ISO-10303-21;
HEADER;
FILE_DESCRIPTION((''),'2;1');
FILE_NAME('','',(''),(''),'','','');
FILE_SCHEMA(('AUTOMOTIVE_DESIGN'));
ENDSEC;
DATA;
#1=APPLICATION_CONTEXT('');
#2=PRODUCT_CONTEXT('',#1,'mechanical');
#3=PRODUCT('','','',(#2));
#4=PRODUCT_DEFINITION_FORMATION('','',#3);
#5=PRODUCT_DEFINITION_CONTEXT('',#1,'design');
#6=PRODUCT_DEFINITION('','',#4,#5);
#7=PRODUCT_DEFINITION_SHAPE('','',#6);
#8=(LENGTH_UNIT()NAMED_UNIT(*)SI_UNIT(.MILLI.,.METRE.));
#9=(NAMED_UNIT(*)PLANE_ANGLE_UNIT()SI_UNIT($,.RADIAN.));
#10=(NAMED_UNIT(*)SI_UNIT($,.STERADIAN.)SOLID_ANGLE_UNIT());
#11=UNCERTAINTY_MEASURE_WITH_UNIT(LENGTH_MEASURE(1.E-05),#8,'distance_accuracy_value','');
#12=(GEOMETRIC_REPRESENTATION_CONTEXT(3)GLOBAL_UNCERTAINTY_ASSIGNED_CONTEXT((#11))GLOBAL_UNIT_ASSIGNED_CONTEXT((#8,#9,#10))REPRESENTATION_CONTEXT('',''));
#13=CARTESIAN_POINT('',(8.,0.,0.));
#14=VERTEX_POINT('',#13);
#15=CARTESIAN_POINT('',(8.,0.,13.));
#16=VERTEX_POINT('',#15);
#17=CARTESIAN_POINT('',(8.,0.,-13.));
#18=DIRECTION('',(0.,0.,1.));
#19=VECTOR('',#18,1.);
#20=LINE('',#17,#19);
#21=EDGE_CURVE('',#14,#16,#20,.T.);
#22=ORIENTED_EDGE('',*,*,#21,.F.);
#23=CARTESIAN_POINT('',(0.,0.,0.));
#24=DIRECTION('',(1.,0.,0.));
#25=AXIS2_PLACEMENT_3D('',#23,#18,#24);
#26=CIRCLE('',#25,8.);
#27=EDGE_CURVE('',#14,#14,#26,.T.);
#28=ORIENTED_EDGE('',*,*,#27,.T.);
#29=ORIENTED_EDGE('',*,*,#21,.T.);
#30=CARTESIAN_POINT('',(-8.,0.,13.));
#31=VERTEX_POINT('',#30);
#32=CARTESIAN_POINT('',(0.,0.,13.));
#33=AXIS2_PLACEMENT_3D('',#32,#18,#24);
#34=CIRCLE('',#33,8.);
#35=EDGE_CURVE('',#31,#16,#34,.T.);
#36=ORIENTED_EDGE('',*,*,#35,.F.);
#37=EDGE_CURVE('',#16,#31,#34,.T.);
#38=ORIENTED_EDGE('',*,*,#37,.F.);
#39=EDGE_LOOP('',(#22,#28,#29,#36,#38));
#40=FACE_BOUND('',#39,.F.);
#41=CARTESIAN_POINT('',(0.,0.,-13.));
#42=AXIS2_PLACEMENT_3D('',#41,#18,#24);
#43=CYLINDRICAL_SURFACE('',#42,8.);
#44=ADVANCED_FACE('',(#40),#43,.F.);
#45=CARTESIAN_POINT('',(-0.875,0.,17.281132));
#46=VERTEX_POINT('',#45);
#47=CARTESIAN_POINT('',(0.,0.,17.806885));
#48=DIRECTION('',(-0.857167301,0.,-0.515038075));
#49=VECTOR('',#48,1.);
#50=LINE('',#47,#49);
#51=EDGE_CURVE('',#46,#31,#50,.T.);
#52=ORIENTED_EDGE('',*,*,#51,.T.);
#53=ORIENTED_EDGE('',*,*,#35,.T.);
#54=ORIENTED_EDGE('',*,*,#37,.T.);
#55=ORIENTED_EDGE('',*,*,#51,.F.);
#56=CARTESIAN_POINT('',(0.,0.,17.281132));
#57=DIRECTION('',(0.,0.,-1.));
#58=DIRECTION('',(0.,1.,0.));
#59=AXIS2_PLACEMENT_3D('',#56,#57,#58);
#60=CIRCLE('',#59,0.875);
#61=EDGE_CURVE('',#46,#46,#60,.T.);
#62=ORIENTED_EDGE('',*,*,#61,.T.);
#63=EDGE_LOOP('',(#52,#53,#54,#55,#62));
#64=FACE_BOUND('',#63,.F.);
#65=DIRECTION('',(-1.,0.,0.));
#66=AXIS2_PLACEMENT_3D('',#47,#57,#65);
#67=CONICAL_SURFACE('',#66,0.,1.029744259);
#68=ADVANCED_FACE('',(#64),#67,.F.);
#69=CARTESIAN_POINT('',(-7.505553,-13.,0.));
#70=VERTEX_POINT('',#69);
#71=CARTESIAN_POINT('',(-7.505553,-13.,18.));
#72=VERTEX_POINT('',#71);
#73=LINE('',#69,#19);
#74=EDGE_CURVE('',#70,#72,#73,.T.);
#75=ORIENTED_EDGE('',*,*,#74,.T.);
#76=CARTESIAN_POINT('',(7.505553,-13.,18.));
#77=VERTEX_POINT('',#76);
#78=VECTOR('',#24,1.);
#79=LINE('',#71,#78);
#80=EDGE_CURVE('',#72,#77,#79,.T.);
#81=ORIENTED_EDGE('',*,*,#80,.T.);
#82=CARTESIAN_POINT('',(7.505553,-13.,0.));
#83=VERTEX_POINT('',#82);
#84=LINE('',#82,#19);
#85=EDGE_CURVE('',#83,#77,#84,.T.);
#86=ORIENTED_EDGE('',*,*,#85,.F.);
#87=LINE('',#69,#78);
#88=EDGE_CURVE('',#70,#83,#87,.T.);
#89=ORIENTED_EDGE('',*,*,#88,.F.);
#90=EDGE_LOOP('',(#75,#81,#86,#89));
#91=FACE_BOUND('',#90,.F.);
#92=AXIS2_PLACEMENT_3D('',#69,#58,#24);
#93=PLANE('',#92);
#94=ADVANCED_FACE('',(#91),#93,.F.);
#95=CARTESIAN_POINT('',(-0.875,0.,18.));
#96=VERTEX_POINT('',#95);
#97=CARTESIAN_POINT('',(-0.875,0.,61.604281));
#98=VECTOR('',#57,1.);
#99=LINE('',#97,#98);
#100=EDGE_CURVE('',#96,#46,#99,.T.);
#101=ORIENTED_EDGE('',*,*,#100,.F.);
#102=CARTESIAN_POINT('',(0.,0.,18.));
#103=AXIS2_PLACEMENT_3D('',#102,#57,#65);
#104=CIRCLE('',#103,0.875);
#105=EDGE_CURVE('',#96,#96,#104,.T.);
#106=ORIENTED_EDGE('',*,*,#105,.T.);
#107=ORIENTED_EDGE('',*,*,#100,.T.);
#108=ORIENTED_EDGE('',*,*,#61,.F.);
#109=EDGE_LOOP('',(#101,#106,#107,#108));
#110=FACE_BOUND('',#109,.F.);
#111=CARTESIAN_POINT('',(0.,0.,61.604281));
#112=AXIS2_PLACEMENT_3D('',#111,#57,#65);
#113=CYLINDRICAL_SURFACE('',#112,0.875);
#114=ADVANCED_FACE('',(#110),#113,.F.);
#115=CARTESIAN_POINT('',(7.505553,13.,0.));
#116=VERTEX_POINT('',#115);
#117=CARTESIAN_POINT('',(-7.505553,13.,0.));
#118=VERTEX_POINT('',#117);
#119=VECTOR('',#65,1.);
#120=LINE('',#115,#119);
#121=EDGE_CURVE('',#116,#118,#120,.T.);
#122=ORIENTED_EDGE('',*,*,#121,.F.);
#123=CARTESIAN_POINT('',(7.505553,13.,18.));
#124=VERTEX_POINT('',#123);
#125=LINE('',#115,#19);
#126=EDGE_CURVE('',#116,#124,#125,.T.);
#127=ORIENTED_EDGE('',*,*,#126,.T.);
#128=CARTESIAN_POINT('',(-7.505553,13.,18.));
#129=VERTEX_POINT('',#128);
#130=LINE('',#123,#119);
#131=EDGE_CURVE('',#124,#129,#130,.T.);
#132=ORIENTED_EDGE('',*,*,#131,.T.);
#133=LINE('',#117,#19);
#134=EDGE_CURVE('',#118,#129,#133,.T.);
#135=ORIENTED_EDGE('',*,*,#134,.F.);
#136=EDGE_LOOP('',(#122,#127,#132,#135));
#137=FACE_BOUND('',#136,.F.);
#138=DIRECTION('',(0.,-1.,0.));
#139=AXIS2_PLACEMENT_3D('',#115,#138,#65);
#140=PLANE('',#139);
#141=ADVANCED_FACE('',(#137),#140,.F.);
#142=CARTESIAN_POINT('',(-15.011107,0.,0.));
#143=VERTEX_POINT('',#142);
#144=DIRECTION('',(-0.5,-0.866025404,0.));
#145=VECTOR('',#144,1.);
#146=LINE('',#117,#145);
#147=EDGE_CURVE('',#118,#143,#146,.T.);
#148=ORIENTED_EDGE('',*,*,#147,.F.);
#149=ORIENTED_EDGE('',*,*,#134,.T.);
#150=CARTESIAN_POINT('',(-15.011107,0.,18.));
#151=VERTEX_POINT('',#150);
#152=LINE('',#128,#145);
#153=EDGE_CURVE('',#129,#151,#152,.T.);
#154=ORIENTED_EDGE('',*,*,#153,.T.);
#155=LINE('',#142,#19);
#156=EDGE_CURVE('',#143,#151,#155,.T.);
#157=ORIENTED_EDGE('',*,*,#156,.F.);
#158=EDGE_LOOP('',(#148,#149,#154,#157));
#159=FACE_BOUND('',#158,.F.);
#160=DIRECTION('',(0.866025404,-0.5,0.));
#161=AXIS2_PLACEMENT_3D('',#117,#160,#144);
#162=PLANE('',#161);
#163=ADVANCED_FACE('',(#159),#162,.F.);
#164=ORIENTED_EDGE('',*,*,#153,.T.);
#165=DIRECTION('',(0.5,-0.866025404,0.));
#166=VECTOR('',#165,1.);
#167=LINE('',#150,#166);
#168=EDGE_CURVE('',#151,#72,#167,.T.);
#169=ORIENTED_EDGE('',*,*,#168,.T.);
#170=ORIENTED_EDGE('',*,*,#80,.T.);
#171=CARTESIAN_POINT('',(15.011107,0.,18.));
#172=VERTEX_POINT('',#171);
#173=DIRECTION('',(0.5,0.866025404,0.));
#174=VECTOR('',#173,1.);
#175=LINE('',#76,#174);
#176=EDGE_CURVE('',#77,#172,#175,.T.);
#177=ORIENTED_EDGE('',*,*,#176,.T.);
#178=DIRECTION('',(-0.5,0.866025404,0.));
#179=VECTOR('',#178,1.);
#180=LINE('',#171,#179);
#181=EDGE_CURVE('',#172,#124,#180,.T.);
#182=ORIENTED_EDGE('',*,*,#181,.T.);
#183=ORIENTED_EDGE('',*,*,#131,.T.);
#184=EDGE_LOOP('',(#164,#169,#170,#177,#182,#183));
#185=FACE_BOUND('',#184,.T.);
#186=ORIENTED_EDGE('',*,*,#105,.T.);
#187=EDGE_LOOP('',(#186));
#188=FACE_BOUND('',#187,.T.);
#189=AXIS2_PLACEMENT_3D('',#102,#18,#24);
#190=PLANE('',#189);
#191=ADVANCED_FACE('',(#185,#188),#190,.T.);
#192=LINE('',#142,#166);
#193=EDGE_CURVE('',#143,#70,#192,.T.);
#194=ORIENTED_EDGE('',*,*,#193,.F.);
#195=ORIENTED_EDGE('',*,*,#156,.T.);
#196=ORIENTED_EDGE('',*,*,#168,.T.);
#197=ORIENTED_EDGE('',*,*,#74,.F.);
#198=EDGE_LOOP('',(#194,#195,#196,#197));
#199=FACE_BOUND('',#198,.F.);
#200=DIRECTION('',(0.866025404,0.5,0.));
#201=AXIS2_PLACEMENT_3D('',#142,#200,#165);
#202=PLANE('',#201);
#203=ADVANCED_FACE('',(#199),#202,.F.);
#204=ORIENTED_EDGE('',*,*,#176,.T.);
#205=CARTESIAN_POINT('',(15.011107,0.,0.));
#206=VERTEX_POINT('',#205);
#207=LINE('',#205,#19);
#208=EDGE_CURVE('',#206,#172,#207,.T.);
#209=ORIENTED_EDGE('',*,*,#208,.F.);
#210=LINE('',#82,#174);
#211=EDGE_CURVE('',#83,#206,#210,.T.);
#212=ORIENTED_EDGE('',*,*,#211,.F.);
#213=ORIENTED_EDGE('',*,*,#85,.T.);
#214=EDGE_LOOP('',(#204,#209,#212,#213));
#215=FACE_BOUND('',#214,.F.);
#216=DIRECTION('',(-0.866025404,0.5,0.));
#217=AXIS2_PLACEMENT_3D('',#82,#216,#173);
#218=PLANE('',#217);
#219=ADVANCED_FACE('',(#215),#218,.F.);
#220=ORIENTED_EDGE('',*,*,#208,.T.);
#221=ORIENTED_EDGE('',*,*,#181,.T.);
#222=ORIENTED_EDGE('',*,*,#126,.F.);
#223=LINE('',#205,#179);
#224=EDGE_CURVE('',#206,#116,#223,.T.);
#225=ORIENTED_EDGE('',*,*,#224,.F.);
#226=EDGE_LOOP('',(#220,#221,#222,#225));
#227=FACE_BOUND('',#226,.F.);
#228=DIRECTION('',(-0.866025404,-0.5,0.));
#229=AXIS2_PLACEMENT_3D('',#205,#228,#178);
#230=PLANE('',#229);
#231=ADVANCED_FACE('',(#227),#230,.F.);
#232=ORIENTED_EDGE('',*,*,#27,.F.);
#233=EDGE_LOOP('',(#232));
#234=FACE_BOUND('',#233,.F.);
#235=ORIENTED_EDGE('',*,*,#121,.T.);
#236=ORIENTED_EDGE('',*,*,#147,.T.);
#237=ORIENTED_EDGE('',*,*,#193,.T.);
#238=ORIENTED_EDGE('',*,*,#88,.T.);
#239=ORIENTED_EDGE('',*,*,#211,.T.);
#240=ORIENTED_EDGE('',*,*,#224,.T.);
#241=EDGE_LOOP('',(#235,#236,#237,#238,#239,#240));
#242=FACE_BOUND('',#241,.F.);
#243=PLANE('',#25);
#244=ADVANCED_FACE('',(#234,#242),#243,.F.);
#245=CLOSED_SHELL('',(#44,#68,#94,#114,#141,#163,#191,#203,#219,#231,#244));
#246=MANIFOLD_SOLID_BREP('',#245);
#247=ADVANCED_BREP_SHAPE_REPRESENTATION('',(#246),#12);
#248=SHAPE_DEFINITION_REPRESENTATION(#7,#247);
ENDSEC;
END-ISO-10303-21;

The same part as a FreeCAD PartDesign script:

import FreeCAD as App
import Part
import Sketcher
Q = App.Units.Quantity

doc = App.newDocument("Part")
body = doc.addObject("PartDesign::Body", "Body")

sketch1 = doc.addObject("Sketcher::SketchObject", "Sketch")
body.addObject(sketch1)
sketch1.AttachmentSupport = (doc.XY_Plane, [""])
sketch1.MapMode = "FlatFace"
sketch1.addGeometry(Part.LineSegment(App.Vector(15, 0, 0), App.Vector(8, 13, 0)), False)
sketch1.addGeometry(Part.LineSegment(App.Vector(8, 13, 0), App.Vector(-8, 13, 0)), False)
sketch1.addGeometry(Part.LineSegment(App.Vector(-8, 13, 0), App.Vector(-15, 0, 0)), False)
sketch1.addGeometry(Part.LineSegment(App.Vector(-15, 0, 0), App.Vector(-8, -13, 0)), False)
sketch1.addGeometry(Part.LineSegment(App.Vector(-8, -13, 0), App.Vector(8, -13, 0)), False)
sketch1.addGeometry(Part.LineSegment(App.Vector(8, -13, 0), App.Vector(15, 0, 0)), False)
sketch1.addConstraint(Sketcher.Constraint("Coincident", 0, 2, 1, 1))
sketch1.addConstraint(Sketcher.Constraint("Coincident", 1, 2, 2, 1))
sketch1.addConstraint(Sketcher.Constraint("Coincident", 2, 2, 3, 1))
sketch1.addConstraint(Sketcher.Constraint("Coincident", 3, 2, 4, 1))
sketch1.addConstraint(Sketcher.Constraint("Coincident", 4, 2, 5, 1))
sketch1.addConstraint(Sketcher.Constraint("Coincident", 5, 2, 0, 1))
sketch1.addConstraint(Sketcher.Constraint("Horizontal", 1))
sketch1.addConstraint(Sketcher.Constraint("Horizontal", 4))
sketch1.addConstraint(Sketcher.Constraint("Symmetric", 0, 2, 3, 2, -1, 1))
sketch1.addConstraint(Sketcher.Constraint("Symmetric", 2, 2, 5, 2, -1, 1))
sketch1.addConstraint(Sketcher.Constraint("PointOnObject", 2, 2, -1))
sketch1.addConstraint(Sketcher.Constraint("Parallel", 2, 5))
sketch1.addConstraint(Sketcher.Constraint("Vertical", 1, 2, 3, 2))
sketch1.addConstraint(Sketcher.Constraint("Angle", 0, Q("120 deg")))
sketch1.addConstraint(Sketcher.Constraint("DistanceY", -1, 1, 0, 2, 13.0))
sketch1.addConstraint(Sketcher.Constraint("DistanceX", 1, 2, 1, 1, 15.011107))
pad1 = doc.addObject("PartDesign::Pad", "Pad")
body.addObject(pad1)
pad1.Profile = sketch1
pad1.Length = 18

sketch2 = doc.addObject("Sketcher::SketchObject", "Sketch001")
body.addObject(sketch2)
sketch2.AttachmentSupport = (doc.XY_Plane, [""])
sketch2.MapMode = "FlatFace"
sketch2.addGeometry(Part.Circle(App.Vector(0, 0, 0), App.Vector(0, 0, 1), 8), False)
sketch2.addConstraint(Sketcher.Constraint("Coincident", 0, 3, -1, 1))
sketch2.addConstraint(Sketcher.Constraint("Diameter", 0, 16.0))
doc.recompute()
hole = doc.addObject("PartDesign::Hole", "Hole")
body.addObject(hole)
hole.Profile = sketch2
hole.ThreadType = "None"
hole.Diameter = 16
hole.DepthType = "Dimension"
hole.Depth = 13
hole.DrillPoint = "Angled"
hole.DrillPointAngle = 118
hole.Reversed = True

sketch3 = doc.addObject("Sketcher::SketchObject", "Sketch002")
body.addObject(sketch3)
sketch3.AttachmentSupport = (doc.XY_Plane, [""])
sketch3.MapMode = "FlatFace"
sketch3.AttachmentOffset = App.Placement(App.Vector(0, 0, 18), App.Rotation())
sketch3.addGeometry(Part.Circle(App.Vector(0, 0, 0), App.Vector(0, 0, 1), 0.9), False)
sketch3.addConstraint(Sketcher.Constraint("Coincident", 0, 3, -1, 1))
sketch3.addConstraint(Sketcher.Constraint("Diameter", 0, 1.75))
doc.recompute()
hole2 = doc.addObject("PartDesign::Hole", "Hole001")
body.addObject(hole2)
hole2.Profile = sketch3
hole2.ThreadType = "None"
hole2.Diameter = 1.75
hole2.DepthType = "ThroughAll"

doc.recompute()
